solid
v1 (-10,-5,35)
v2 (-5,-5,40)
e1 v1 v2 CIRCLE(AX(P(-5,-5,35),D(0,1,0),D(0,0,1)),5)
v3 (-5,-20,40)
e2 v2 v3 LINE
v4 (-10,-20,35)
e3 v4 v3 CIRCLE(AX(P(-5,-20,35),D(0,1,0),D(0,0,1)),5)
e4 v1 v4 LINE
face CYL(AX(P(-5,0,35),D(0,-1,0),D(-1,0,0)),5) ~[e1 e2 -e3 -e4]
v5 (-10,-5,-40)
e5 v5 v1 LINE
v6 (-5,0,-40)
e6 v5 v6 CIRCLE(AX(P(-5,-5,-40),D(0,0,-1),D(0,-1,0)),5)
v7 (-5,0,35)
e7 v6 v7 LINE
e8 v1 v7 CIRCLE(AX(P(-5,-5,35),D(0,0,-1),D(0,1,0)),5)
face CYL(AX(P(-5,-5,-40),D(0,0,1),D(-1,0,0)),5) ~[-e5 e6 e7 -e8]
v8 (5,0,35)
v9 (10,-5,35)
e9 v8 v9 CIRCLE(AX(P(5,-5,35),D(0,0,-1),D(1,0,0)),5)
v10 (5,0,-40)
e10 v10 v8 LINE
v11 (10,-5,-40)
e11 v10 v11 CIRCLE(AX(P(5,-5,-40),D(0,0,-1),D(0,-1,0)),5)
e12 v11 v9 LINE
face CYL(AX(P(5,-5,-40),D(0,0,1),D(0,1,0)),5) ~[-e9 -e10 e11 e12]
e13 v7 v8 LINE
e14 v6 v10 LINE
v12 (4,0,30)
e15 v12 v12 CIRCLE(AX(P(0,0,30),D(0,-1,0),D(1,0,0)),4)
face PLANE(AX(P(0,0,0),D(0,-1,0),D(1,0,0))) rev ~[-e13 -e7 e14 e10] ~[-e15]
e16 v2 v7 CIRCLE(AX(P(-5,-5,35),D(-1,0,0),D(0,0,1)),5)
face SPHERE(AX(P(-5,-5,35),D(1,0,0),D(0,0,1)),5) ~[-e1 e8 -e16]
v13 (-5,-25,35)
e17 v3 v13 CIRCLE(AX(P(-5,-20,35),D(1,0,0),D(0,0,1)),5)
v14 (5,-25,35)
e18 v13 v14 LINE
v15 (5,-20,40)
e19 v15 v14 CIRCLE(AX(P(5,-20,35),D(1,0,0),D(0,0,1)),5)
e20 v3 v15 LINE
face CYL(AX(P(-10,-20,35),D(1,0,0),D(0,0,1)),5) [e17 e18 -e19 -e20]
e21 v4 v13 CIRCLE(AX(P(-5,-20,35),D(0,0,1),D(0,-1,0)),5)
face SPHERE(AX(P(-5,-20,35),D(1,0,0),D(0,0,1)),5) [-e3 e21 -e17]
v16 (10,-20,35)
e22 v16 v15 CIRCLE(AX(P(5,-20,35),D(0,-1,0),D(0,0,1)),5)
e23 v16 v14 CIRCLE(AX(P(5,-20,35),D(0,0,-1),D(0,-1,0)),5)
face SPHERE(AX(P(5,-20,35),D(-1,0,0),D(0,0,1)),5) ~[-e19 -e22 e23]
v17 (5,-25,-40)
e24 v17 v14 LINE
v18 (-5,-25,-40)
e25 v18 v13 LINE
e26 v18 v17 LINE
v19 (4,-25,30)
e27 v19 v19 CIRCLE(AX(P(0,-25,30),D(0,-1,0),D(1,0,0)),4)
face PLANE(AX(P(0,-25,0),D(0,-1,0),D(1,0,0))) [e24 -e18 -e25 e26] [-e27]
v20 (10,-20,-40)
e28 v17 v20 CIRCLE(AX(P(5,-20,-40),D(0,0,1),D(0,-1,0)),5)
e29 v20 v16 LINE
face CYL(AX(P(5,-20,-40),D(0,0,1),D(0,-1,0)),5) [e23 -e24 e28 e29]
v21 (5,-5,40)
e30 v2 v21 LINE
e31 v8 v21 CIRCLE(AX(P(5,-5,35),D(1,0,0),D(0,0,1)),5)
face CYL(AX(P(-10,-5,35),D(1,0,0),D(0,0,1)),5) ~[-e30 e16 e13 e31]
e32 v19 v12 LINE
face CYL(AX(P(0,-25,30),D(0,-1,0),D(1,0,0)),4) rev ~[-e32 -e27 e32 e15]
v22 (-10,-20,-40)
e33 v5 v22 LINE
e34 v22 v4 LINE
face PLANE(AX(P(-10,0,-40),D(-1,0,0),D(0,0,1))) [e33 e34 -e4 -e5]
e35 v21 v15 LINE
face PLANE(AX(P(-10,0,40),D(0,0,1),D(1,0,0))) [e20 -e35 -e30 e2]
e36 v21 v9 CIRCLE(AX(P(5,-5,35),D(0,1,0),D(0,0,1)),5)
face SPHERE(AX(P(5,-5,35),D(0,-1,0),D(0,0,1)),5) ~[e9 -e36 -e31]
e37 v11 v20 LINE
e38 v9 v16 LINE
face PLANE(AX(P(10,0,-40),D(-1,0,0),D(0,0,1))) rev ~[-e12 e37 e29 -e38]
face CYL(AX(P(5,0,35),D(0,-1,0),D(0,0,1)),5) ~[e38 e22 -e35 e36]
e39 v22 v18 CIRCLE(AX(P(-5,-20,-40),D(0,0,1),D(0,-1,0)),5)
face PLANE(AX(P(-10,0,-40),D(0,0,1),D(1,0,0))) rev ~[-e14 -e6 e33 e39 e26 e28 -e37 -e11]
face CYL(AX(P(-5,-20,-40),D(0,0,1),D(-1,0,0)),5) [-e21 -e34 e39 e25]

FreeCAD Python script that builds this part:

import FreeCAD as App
import Part
import Sketcher
from FreeCAD import Vector


def edges_at(feature, points):
    """Names of the edges that pass closest to the given points."""
    edges = feature.Shape.Edges
    near = lambda p: min(range(len(edges)), key=lambda i: edges[i].distToShape(Part.Vertex(*p))[0])
    return sorted({f"Edge{near(p) + 1}" for p in points})


def add_polygon(sketch, points):
    """Adds a closed chain of lines whose ends are joined by coincident constraints."""
    first, n = sketch.GeometryCount, len(points)
    for a, b in zip(points, points[1:] + points[:1]):
        sketch.addGeometry(Part.LineSegment(App.Vector(*a, 0), App.Vector(*b, 0)), False)
    for i in range(n):
        sketch.addConstraint(Sketcher.Constraint("Coincident", first + i, 2, first + (i + 1) % n, 1))

doc = App.newDocument("Part")
body = doc.addObject("PartDesign::Body", "Body")

# Sketch on XZ plane
sketch1 = body.newObject("Sketcher::SketchObject", "Sketch")
sketch1.AttachmentSupport = (doc.getObject("XZ_Plane"), [""])
sketch1.MapMode = "FlatFace"
add_polygon(sketch1, [(-10, 40), (-10, -40), (10, -40), (10, 40)])  # lines 0-3
sketch1.addConstraint([
    Sketcher.Constraint("Vertical", 0),
    Sketcher.Constraint("Horizontal", 1),
    Sketcher.Constraint("Vertical", 2),
    Sketcher.Constraint("Horizontal", 3),
    Sketcher.Constraint("Symmetric", 0, 2, 2, 2, -1, 1),
    Sketcher.Constraint("DistanceX", 1, 1, 1, 2, 20.0),
    Sketcher.Constraint("DistanceY", 0, 2, 0, 1, 80.0),
])
pad1 = body.newObject("PartDesign::Pad", "Pad")
pad1.Profile = sketch1
pad1.Length = 25

# Sketch on XZ plane
sketch2 = body.newObject("Sketcher::SketchObject", "Sketch001")
sketch2.AttachmentSupport = (doc.getObject("XZ_Plane"), [""])
sketch2.MapMode = "FlatFace"
sketch2.AttachmentOffset = App.Placement(Vector(0, 0, 25), App.Rotation())
sketch2.addGeometry(Part.Circle(Vector(0, 30, 0), Vector(0, 0, 1), 4), False)
sketch2.addConstraint([
    Sketcher.Constraint("PointOnObject", 0, 3, -2),
    Sketcher.Constraint("Diameter", 0, 8.0),
    Sketcher.Constraint("DistanceY", -1, 1, 0, 3, 30.0),
])
pocket1 = body.newObject("PartDesign::Pocket", "Pocket")
pocket1.Profile = sketch2
pocket1.Length = 25
doc.recompute()

fillet = body.newObject("PartDesign::Fillet", "Fillet")
fillet.Base = (pocket1, edges_at(pocket1, [
    (0, -25, 40),
    (10, -12.5, 40),
    (0, 0, 40),
    (-10, -12.5, 40),
    (10, -25, 0),
    (-10, 0, 0),
    (10, 0, 0),
    (-10, -25, 0),
]))
fillet.Radius = 5

doc.recompute()
